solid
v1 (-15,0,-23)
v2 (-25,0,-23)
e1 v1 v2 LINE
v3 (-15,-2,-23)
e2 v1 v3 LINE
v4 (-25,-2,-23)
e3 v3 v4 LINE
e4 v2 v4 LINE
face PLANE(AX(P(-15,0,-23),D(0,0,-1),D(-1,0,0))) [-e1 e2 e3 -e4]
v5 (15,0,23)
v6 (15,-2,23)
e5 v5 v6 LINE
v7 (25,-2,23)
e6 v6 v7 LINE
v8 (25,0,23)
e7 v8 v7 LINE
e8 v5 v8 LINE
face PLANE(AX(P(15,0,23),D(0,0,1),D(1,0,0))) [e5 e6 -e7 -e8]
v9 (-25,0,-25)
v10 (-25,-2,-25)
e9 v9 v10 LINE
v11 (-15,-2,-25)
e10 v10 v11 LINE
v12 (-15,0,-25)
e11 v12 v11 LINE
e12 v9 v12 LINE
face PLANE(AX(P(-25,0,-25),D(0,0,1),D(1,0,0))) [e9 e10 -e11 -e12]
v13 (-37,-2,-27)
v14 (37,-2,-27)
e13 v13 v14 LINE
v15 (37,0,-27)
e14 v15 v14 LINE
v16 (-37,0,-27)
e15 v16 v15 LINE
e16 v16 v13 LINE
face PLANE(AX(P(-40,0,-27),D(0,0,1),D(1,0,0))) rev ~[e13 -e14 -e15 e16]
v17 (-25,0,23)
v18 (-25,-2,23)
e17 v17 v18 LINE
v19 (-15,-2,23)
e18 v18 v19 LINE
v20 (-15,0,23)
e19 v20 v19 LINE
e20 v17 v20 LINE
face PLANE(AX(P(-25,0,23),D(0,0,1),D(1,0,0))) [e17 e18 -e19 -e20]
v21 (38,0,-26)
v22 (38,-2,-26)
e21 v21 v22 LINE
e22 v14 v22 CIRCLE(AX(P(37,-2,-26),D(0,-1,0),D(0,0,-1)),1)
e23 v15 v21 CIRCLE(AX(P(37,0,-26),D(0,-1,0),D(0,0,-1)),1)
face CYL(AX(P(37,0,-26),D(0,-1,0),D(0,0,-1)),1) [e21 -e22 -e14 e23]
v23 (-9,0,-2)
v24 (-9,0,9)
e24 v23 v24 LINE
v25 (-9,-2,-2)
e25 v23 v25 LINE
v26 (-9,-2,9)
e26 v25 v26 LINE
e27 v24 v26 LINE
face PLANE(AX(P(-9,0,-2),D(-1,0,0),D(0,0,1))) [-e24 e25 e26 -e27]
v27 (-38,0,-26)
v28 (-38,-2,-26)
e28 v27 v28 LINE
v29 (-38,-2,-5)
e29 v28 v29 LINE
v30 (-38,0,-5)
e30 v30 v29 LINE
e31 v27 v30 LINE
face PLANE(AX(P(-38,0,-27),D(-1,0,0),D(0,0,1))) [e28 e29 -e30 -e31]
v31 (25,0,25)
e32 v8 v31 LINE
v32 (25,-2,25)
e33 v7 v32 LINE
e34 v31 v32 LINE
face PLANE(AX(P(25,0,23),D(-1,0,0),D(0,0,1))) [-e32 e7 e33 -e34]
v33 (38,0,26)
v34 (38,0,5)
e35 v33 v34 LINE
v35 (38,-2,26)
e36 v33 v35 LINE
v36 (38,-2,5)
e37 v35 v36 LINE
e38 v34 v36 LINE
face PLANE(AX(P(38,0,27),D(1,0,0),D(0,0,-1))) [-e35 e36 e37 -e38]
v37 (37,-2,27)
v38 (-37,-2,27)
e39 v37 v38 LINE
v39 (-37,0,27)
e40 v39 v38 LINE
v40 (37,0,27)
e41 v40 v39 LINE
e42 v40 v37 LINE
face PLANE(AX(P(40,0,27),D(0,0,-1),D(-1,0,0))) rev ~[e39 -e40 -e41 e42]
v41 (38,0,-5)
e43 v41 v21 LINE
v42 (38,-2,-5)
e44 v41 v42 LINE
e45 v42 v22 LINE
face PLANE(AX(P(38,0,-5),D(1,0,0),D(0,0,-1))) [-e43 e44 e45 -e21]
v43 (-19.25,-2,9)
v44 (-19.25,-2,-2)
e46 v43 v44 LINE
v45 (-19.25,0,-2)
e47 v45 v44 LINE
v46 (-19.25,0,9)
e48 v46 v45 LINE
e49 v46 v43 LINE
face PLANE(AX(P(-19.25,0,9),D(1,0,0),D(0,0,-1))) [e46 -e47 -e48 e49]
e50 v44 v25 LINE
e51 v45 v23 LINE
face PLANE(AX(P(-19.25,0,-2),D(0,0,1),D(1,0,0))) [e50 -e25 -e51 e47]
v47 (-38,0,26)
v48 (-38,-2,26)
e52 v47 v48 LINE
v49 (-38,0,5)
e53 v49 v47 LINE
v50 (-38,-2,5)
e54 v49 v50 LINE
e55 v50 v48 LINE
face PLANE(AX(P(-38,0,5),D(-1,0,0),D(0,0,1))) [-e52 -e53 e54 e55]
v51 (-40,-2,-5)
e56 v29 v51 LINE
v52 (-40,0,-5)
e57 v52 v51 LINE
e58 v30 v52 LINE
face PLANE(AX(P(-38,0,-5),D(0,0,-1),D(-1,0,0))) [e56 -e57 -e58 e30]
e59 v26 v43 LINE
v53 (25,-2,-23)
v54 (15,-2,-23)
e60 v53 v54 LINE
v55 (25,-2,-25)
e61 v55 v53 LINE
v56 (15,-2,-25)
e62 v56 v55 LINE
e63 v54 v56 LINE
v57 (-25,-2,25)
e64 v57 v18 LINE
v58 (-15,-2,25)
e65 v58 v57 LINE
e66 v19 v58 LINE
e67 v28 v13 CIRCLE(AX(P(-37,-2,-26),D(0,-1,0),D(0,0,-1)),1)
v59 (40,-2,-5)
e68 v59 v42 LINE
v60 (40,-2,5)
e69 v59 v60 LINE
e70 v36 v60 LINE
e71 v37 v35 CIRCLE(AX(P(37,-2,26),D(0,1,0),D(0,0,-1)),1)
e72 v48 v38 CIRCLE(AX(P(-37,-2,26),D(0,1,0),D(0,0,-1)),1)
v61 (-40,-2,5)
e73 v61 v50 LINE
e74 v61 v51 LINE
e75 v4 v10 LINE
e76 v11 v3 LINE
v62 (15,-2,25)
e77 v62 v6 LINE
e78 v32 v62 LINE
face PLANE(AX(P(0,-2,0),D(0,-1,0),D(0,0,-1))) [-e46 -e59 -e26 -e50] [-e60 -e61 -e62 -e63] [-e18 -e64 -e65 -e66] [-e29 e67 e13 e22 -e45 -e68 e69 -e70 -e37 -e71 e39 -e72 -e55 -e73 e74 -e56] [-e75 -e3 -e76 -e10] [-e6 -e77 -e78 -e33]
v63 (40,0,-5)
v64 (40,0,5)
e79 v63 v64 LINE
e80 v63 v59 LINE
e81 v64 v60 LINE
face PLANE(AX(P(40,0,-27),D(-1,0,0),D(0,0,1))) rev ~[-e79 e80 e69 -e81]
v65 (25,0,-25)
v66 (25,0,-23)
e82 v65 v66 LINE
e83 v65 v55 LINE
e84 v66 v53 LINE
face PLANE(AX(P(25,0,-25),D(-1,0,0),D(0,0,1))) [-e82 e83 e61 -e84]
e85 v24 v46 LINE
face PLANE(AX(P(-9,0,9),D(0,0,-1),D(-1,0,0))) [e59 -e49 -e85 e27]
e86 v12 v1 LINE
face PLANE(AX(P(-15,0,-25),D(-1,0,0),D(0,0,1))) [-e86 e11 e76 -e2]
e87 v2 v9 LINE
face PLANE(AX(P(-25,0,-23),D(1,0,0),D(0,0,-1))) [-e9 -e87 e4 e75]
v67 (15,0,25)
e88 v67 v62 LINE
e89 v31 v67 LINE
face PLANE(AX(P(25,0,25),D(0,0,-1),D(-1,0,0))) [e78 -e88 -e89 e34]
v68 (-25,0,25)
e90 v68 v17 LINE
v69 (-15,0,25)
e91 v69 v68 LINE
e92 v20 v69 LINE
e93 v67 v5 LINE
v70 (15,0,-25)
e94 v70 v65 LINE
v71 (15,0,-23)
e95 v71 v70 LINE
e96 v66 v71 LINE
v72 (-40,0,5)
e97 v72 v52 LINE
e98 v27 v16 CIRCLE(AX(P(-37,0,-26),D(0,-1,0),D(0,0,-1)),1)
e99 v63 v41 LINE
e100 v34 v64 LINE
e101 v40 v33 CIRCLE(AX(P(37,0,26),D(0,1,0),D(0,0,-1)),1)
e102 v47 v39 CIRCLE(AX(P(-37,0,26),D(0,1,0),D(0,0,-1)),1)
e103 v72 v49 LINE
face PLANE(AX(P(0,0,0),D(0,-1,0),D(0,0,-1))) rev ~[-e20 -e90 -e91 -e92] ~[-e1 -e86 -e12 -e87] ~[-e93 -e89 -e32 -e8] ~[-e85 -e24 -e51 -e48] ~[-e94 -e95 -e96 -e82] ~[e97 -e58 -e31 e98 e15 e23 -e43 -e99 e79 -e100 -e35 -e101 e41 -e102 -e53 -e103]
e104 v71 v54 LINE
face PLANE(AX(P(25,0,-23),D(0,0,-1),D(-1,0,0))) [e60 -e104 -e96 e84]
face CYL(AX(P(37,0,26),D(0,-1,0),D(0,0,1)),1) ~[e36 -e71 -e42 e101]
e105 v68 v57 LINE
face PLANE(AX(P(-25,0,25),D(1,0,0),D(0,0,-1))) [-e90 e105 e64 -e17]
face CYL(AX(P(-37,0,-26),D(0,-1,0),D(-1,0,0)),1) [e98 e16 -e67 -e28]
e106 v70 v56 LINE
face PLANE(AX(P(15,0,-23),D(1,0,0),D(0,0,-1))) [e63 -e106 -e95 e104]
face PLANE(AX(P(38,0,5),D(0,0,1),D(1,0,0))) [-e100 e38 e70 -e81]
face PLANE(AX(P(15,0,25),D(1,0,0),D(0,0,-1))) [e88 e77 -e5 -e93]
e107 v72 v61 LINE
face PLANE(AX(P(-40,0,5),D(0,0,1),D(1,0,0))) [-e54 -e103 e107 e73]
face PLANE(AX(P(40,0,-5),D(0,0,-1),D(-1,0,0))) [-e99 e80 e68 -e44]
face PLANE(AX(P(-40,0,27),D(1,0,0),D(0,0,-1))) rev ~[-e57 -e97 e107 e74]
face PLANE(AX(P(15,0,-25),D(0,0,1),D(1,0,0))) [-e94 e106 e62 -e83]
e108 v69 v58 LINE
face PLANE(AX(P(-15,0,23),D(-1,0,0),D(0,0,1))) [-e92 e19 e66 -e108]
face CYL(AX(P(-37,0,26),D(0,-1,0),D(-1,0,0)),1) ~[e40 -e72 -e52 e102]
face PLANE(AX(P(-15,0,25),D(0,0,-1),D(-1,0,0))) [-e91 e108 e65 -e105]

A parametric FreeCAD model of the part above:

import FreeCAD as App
import Part
import Sketcher

V = App.Vector
Q = App.Units.Quantity


def edges_at(feature, points):
    """Names of the edges that pass closest to the given points."""
    edges = feature.Shape.Edges
    near = lambda p: min(range(len(edges)), key=lambda i: edges[i].distToShape(Part.Vertex(*p))[0])
    return sorted({f"Edge{near(p) + 1}" for p in points})


def add_polygon(sketch, points):
    """Adds a closed chain of lines whose ends are joined by coincident constraints."""
    first, n = sketch.GeometryCount, len(points)
    for a, b in zip(points, points[1:] + points[:1]):
        sketch.addGeometry(Part.LineSegment(App.Vector(*a, 0), App.Vector(*b, 0)), False)
    for i in range(n):
        sketch.addConstraint(Sketcher.Constraint("Coincident", first + i, 2, first + (i + 1) % n, 1))

doc = App.newDocument("Part")
params = doc.addObject("Spreadsheet::Sheet", "Params")
for row, (alias, value) in enumerate([
    ("sketch1_width", "80 mm"),
    ("sketch1_height", "54 mm"),
    ("pad1_length", "2 mm"),
    ("sketch2_width", "10 mm"),
    ("sketch2_height", "2 mm"),
    ("pocket1_length", "2 mm"),
    ("sketch3_width", "10 mm"),
    ("sketch3_height", "2 mm"),
    ("pocket2_length", "2 mm"),
    ("sketch4_width", "10 mm"),
    ("sketch4_height", "2 mm"),
    ("pocket3_length", "2 mm"),
    ("sketch5_width", "10 mm"),
    ("sketch5_height", "2 mm"),
    ("pocket4_length", "2 mm"),
    ("sketch6_width", "2 mm"),
    ("sketch6_height", "22 mm"),
    ("pocket5_length", "2 mm"),
    ("sketch7_width", "2 mm"),
    ("sketch7_height", "22 mm"),
    ("pocket6_length", "2 mm"),
    ("sketch8_width", "2 mm"),
    ("sketch8_height", "22 mm"),
    ("pocket7_length", "2 mm"),
    ("sketch9_width", "2 mm"),
    ("sketch9_height", "22 mm"),
    ("pocket8_length", "2 mm"),
    ("sketch10_height", "11 mm"),
    ("sketch10_width", "10.25 mm"),
    ("pocket9_length", "2 mm"),
    ("fillet_radius", "1 mm"),
], start=1):
    params.set(f"A{row}", alias)
    params.set(f"B{row}", "=" + value)
    params.setAlias(f"B{row}", alias)

body = doc.addObject("PartDesign::Body", "Body")

# Sketch on XZ plane
sketch1 = doc.addObject("Sketcher::SketchObject", "Sketch")
body.addObject(sketch1)
sketch1.AttachmentSupport = (doc.XZ_Plane, [""])
sketch1.MapMode = "FlatFace"
add_polygon(sketch1, [(-40, -27), (40, -27), (40, 27), (-40, 27)])  # lines 0-3
sketch1.addConstraint([
    Sketcher.Constraint("Horizontal", 0),
    Sketcher.Constraint("Vertical", 1),
    Sketcher.Constraint("Horizontal", 2),
    Sketcher.Constraint("Vertical", 3),
    Sketcher.Constraint("Symmetric", 0, 2, 2, 2, -1, 1),
    Sketcher.Constraint("DistanceX", 0, 1, 0, 2, Q("80 mm")),
    Sketcher.Constraint("DistanceY", 1, 1, 1, 2, Q("54 mm")),
])
sketch1.setExpression("Constraints[9]", "Params.sketch1_width")
sketch1.setExpression("Constraints[10]", "Params.sketch1_height")
pad1 = doc.addObject("PartDesign::Pad", "Pad")
body.addObject(pad1)
pad1.Profile = sketch1
pad1.setExpression("Length", "Params.pad1_length")

# Sketch on XZ plane
sketch2 = doc.addObject("Sketcher::SketchObject", "Sketch001")
body.addObject(sketch2)
sketch2.AttachmentSupport = (doc.XZ_Plane, [""])
sketch2.MapMode = "FlatFace"
add_polygon(sketch2, [(-25, 25), (-25, 23), (-15, 23), (-15, 25)])  # lines 0-3
sketch2.addConstraint([
    Sketcher.Constraint("Vertical", 0),
    Sketcher.Constraint("Horizontal", 1),
    Sketcher.Constraint("Vertical", 2),
    Sketcher.Constraint("Horizontal", 3),
    Sketcher.Constraint("DistanceX", 1, 1, 1, 2, Q("10 mm")),
    Sketcher.Constraint("DistanceY", 0, 2, 0, 1, Q("2 mm")),
    Sketcher.Constraint("DistanceX", 0, 2, -1, 1, Q("25 mm")),
    Sketcher.Constraint("DistanceY", -1, 1, 0, 2, Q("23 mm")),
])
sketch2.setExpression("Constraints[8]", "Params.sketch2_width")
sketch2.setExpression("Constraints[9]", "Params.sketch2_height")
pocket1 = doc.addObject("PartDesign::Pocket", "Pocket")
body.addObject(pocket1)
pocket1.Profile = sketch2
pocket1.setExpression("Length", "Params.pocket1_length")
pocket1.Reversed = True

# Sketch on XZ plane
sketch3 = doc.addObject("Sketcher::SketchObject", "Sketch002")
body.addObject(sketch3)
sketch3.AttachmentSupport = (doc.XZ_Plane, [""])
sketch3.MapMode = "FlatFace"
add_polygon(sketch3, [(25, 23), (25, 25), (15, 25), (15, 23)])  # lines 0-3
sketch3.addConstraint([
    Sketcher.Constraint("Vertical", 0),
    Sketcher.Constraint("Horizontal", 1),
    Sketcher.Constraint("Vertical", 2),
    Sketcher.Constraint("Horizontal", 3),
    Sketcher.Constraint("DistanceX", 1, 2, 1, 1, Q("10 mm")),
    Sketcher.Constraint("DistanceY", 0, 1, 0, 2, Q("2 mm")),
    Sketcher.Constraint("DistanceX", -1, 1, 0, 2, Q("25 mm")),
    Sketcher.Constraint("DistanceY", -1, 1, 0, 2, Q("25 mm")),
])
sketch3.setExpression("Constraints[8]", "Params.sketch3_width")
sketch3.setExpression("Constraints[9]", "Params.sketch3_height")
pocket2 = doc.addObject("PartDesign::Pocket", "Pocket001")
body.addObject(pocket2)
pocket2.Profile = sketch3
pocket2.setExpression("Length", "Params.pocket2_length")
pocket2.Reversed = True

# Sketch on XZ plane
sketch4 = doc.addObject("Sketcher::SketchObject", "Sketch003")
body.addObject(sketch4)
sketch4.AttachmentSupport = (doc.XZ_Plane, [""])
sketch4.MapMode = "FlatFace"
add_polygon(sketch4, [(15, -23), (15, -25), (25, -25), (25, -23)])  # lines 0-3
sketch4.addConstraint([
    Sketcher.Constraint("Vertical", 0),
    Sketcher.Constraint("Horizontal", 1),
    Sketcher.Constraint("Vertical", 2),
    Sketcher.Constraint("Horizontal", 3),
    Sketcher.Constraint("DistanceX", 1, 1, 1, 2, Q("10 mm")),
    Sketcher.Constraint("DistanceY", 0, 2, 0, 1, Q("2 mm")),
    Sketcher.Constraint("DistanceX", -1, 1, 0, 2, Q("15 mm")),
    Sketcher.Constraint("DistanceY", 0, 2, -1, 1, Q("25 mm")),
])
sketch4.setExpression("Constraints[8]", "Params.sketch4_width")
sketch4.setExpression("Constraints[9]", "Params.sketch4_height")
pocket3 = doc.addObject("PartDesign::Pocket", "Pocket002")
body.addObject(pocket3)
pocket3.Profile = sketch4
pocket3.setExpression("Length", "Params.pocket3_length")
pocket3.Reversed = True

# Sketch on XZ plane
sketch5 = doc.addObject("Sketcher::SketchObject", "Sketch004")
body.addObject(sketch5)
sketch5.AttachmentSupport = (doc.XZ_Plane, [""])
sketch5.MapMode = "FlatFace"
add_polygon(sketch5, [(-15, -25), (-15, -23), (-25, -23), (-25, -25)])  # lines 0-3
sketch5.addConstraint([
    Sketcher.Constraint("Vertical", 0),
    Sketcher.Constraint("Horizontal", 1),
    Sketcher.Constraint("Vertical", 2),
    Sketcher.Constraint("Horizontal", 3),
    Sketcher.Constraint("DistanceX", 1, 2, 1, 1, Q("10 mm")),
    Sketcher.Constraint("DistanceY", 0, 1, 0, 2, Q("2 mm")),
    Sketcher.Constraint("DistanceX", 0, 2, -1, 1, Q("15 mm")),
    Sketcher.Constraint("DistanceY", 0, 2, -1, 1, Q("23 mm")),
])
sketch5.setExpression("Constraints[8]", "Params.sketch5_width")
sketch5.setExpression("Constraints[9]", "Params.sketch5_height")
pocket4 = doc.addObject("PartDesign::Pocket", "Pocket003")
body.addObject(pocket4)
pocket4.Profile = sketch5
pocket4.setExpression("Length", "Params.pocket4_length")
pocket4.Reversed = True

# Sketch on XZ plane
sketch6 = doc.addObject("Sketcher::SketchObject", "Sketch005")
body.addObject(sketch6)
sketch6.AttachmentSupport = (doc.XZ_Plane, [""])
sketch6.MapMode = "FlatFace"
add_polygon(sketch6, [(-40, -27), (-38, -27), (-38, -5), (-40, -5)])  # lines 0-3
sketch6.addConstraint([
    Sketcher.Constraint("Horizontal", 0),
    Sketcher.Constraint("Vertical", 1),
    Sketcher.Constraint("Horizontal", 2),
    Sketcher.Constraint("Vertical", 3),
    Sketcher.Constraint("DistanceX", 0, 1, 0, 2, Q("2 mm")),
    Sketcher.Constraint("DistanceY", 1, 1, 1, 2, Q("22 mm")),
    Sketcher.Constraint("DistanceX", 0, 2, -1, 1, Q("38 mm")),
    Sketcher.Constraint("DistanceY", 0, 2, -1, 1, Q("27 mm")),
])
sketch6.setExpression("Constraints[8]", "Params.sketch6_width")
sketch6.setExpression("Constraints[9]", "Params.sketch6_height")
pocket5 = doc.addObject("PartDesign::Pocket", "Pocket004")
body.addObject(pocket5)
pocket5.Profile = sketch6
pocket5.setExpression("Length", "Params.pocket5_length")
pocket5.Reversed = True

# Sketch on XZ plane
sketch7 = doc.addObject("Sketcher::SketchObject", "Sketch006")
body.addObject(sketch7)
sketch7.AttachmentSupport = (doc.XZ_Plane, [""])
sketch7.MapMode = "FlatFace"
add_polygon(sketch7, [(-40, 5), (-38, 5), (-38, 27), (-40, 27)])  # lines 0-3
sketch7.addConstraint([
    Sketcher.Constraint("Horizontal", 0),
    Sketcher.Constraint("Vertical", 1),
    Sketcher.Constraint("Horizontal", 2),
    Sketcher.Constraint("Vertical", 3),
    Sketcher.Constraint("DistanceX", 0, 1, 0, 2, Q("2 mm")),
    Sketcher.Constraint("DistanceY", 1, 1, 1, 2, Q("22 mm")),
    Sketcher.Constraint("DistanceX", 0, 2, -1, 1, Q("38 mm")),
    Sketcher.Constraint("DistanceY", -1, 1, 0, 2, Q("5 mm")),
])
sketch7.setExpression("Constraints[8]", "Params.sketch7_width")
sketch7.setExpression("Constraints[9]", "Params.sketch7_height")
pocket6 = doc.addObject("PartDesign::Pocket", "Pocket005")
body.addObject(pocket6)
pocket6.Profile = sketch7
pocket6.setExpression("Length", "Params.pocket6_length")
pocket6.Reversed = True

# Sketch on XZ plane
sketch8 = doc.addObject("Sketcher::SketchObject", "Sketch007")
body.addObject(sketch8)
sketch8.AttachmentSupport = (doc.XZ_Plane, [""])
sketch8.MapMode = "FlatFace"
add_polygon(sketch8, [(40, -5), (38, -5), (38, -27), (40, -27)])  # lines 0-3
sketch8.addConstraint([
    Sketcher.Constraint("Horizontal", 0),
    Sketcher.Constraint("Vertical", 1),
    Sketcher.Constraint("Horizontal", 2),
    Sketcher.Constraint("Vertical", 3),
    Sketcher.Constraint("DistanceX", 0, 2, 0, 1, Q("2 mm")),
    Sketcher.Constraint("DistanceY", 1, 2, 1, 1, Q("22 mm")),
    Sketcher.Constraint("DistanceX", -1, 1, 0, 2, Q("38 mm")),
    Sketcher.Constraint("DistanceY", 0, 2, -1, 1, Q("5 mm")),
])
sketch8.setExpression("Constraints[8]", "Params.sketch8_width")
sketch8.setExpression("Constraints[9]", "Params.sketch8_height")
pocket7 = doc.addObject("PartDesign::Pocket", "Pocket006")
body.addObject(pocket7)
pocket7.Profile = sketch8
pocket7.setExpression("Length", "Params.pocket7_length")
pocket7.Reversed = True

# Sketch on XZ plane
sketch9 = doc.addObject("Sketcher::SketchObject", "Sketch008")
body.addObject(sketch9)
sketch9.AttachmentSupport = (doc.XZ_Plane, [""])
sketch9.MapMode = "FlatFace"
add_polygon(sketch9, [(40, 27), (38, 27), (38, 5), (40, 5)])  # lines 0-3
sketch9.addConstraint([
    Sketcher.Constraint("Horizontal", 0),
    Sketcher.Constraint("Vertical", 1),
    Sketcher.Constraint("Horizontal", 2),
    Sketcher.Constraint("Vertical", 3),
    Sketcher.Constraint("DistanceX", 0, 2, 0, 1, Q("2 mm")),
    Sketcher.Constraint("DistanceY", 1, 2, 1, 1, Q("22 mm")),
    Sketcher.Constraint("DistanceX", -1, 1, 0, 2, Q("38 mm")),
    Sketcher.Constraint("DistanceY", -1, 1, 0, 2, Q("27 mm")),
])
sketch9.setExpression("Constraints[8]", "Params.sketch9_width")
sketch9.setExpression("Constraints[9]", "Params.sketch9_height")
pocket8 = doc.addObject("PartDesign::Pocket", "Pocket007")
body.addObject(pocket8)
pocket8.Profile = sketch9
pocket8.setExpression("Length", "Params.pocket8_length")
pocket8.Reversed = True

# Sketch on XZ plane
sketch10 = doc.addObject("Sketcher::SketchObject", "Sketch009")
body.addObject(sketch10)
sketch10.AttachmentSupport = (doc.XZ_Plane, [""])
sketch10.MapMode = "FlatFace"
add_polygon(sketch10, [(-19.25, 9), (-19.25, -2), (-9, -2), (-9, 9)])  # lines 0-3
sketch10.addConstraint([
    Sketcher.Constraint("Vertical", 0),
    Sketcher.Constraint("Horizontal", 1),
    Sketcher.Constraint("Vertical", 2),
    Sketcher.Constraint("Horizontal", 3),
    Sketcher.Constraint("DistanceY", 0, 2, 0, 1, Q("11 mm")),
    Sketcher.Constraint("DistanceY", 0, 2, -1, 1, Q("2 mm")),
    Sketcher.Constraint("DistanceX", 1, 2, -1, 1, Q("9 mm")),
    Sketcher.Constraint("DistanceX", 1, 1, 1, 2, Q("10.25 mm")),
])
sketch10.setExpression("Constraints[8]", "Params.sketch10_height")
sketch10.setExpression("Constraints[11]", "Params.sketch10_width")
pocket9 = doc.addObject("PartDesign::Pocket", "Pocket008")
body.addObject(pocket9)
pocket9.Profile = sketch10
pocket9.setExpression("Length", "Params.pocket9_length")
pocket9.Reversed = True
doc.recompute()

fillet = doc.addObject("PartDesign::Fillet", "Fillet")
body.addObject(fillet)
fillet.Base = (pocket9, edges_at(pocket9, [
    (38, -1, -27),
    (38, -1, 27),
    (-38, -1, 27),
    (-38, -1, -27),
]))
fillet.setExpression("Radius", "Params.fillet_radius")

doc.recompute()
